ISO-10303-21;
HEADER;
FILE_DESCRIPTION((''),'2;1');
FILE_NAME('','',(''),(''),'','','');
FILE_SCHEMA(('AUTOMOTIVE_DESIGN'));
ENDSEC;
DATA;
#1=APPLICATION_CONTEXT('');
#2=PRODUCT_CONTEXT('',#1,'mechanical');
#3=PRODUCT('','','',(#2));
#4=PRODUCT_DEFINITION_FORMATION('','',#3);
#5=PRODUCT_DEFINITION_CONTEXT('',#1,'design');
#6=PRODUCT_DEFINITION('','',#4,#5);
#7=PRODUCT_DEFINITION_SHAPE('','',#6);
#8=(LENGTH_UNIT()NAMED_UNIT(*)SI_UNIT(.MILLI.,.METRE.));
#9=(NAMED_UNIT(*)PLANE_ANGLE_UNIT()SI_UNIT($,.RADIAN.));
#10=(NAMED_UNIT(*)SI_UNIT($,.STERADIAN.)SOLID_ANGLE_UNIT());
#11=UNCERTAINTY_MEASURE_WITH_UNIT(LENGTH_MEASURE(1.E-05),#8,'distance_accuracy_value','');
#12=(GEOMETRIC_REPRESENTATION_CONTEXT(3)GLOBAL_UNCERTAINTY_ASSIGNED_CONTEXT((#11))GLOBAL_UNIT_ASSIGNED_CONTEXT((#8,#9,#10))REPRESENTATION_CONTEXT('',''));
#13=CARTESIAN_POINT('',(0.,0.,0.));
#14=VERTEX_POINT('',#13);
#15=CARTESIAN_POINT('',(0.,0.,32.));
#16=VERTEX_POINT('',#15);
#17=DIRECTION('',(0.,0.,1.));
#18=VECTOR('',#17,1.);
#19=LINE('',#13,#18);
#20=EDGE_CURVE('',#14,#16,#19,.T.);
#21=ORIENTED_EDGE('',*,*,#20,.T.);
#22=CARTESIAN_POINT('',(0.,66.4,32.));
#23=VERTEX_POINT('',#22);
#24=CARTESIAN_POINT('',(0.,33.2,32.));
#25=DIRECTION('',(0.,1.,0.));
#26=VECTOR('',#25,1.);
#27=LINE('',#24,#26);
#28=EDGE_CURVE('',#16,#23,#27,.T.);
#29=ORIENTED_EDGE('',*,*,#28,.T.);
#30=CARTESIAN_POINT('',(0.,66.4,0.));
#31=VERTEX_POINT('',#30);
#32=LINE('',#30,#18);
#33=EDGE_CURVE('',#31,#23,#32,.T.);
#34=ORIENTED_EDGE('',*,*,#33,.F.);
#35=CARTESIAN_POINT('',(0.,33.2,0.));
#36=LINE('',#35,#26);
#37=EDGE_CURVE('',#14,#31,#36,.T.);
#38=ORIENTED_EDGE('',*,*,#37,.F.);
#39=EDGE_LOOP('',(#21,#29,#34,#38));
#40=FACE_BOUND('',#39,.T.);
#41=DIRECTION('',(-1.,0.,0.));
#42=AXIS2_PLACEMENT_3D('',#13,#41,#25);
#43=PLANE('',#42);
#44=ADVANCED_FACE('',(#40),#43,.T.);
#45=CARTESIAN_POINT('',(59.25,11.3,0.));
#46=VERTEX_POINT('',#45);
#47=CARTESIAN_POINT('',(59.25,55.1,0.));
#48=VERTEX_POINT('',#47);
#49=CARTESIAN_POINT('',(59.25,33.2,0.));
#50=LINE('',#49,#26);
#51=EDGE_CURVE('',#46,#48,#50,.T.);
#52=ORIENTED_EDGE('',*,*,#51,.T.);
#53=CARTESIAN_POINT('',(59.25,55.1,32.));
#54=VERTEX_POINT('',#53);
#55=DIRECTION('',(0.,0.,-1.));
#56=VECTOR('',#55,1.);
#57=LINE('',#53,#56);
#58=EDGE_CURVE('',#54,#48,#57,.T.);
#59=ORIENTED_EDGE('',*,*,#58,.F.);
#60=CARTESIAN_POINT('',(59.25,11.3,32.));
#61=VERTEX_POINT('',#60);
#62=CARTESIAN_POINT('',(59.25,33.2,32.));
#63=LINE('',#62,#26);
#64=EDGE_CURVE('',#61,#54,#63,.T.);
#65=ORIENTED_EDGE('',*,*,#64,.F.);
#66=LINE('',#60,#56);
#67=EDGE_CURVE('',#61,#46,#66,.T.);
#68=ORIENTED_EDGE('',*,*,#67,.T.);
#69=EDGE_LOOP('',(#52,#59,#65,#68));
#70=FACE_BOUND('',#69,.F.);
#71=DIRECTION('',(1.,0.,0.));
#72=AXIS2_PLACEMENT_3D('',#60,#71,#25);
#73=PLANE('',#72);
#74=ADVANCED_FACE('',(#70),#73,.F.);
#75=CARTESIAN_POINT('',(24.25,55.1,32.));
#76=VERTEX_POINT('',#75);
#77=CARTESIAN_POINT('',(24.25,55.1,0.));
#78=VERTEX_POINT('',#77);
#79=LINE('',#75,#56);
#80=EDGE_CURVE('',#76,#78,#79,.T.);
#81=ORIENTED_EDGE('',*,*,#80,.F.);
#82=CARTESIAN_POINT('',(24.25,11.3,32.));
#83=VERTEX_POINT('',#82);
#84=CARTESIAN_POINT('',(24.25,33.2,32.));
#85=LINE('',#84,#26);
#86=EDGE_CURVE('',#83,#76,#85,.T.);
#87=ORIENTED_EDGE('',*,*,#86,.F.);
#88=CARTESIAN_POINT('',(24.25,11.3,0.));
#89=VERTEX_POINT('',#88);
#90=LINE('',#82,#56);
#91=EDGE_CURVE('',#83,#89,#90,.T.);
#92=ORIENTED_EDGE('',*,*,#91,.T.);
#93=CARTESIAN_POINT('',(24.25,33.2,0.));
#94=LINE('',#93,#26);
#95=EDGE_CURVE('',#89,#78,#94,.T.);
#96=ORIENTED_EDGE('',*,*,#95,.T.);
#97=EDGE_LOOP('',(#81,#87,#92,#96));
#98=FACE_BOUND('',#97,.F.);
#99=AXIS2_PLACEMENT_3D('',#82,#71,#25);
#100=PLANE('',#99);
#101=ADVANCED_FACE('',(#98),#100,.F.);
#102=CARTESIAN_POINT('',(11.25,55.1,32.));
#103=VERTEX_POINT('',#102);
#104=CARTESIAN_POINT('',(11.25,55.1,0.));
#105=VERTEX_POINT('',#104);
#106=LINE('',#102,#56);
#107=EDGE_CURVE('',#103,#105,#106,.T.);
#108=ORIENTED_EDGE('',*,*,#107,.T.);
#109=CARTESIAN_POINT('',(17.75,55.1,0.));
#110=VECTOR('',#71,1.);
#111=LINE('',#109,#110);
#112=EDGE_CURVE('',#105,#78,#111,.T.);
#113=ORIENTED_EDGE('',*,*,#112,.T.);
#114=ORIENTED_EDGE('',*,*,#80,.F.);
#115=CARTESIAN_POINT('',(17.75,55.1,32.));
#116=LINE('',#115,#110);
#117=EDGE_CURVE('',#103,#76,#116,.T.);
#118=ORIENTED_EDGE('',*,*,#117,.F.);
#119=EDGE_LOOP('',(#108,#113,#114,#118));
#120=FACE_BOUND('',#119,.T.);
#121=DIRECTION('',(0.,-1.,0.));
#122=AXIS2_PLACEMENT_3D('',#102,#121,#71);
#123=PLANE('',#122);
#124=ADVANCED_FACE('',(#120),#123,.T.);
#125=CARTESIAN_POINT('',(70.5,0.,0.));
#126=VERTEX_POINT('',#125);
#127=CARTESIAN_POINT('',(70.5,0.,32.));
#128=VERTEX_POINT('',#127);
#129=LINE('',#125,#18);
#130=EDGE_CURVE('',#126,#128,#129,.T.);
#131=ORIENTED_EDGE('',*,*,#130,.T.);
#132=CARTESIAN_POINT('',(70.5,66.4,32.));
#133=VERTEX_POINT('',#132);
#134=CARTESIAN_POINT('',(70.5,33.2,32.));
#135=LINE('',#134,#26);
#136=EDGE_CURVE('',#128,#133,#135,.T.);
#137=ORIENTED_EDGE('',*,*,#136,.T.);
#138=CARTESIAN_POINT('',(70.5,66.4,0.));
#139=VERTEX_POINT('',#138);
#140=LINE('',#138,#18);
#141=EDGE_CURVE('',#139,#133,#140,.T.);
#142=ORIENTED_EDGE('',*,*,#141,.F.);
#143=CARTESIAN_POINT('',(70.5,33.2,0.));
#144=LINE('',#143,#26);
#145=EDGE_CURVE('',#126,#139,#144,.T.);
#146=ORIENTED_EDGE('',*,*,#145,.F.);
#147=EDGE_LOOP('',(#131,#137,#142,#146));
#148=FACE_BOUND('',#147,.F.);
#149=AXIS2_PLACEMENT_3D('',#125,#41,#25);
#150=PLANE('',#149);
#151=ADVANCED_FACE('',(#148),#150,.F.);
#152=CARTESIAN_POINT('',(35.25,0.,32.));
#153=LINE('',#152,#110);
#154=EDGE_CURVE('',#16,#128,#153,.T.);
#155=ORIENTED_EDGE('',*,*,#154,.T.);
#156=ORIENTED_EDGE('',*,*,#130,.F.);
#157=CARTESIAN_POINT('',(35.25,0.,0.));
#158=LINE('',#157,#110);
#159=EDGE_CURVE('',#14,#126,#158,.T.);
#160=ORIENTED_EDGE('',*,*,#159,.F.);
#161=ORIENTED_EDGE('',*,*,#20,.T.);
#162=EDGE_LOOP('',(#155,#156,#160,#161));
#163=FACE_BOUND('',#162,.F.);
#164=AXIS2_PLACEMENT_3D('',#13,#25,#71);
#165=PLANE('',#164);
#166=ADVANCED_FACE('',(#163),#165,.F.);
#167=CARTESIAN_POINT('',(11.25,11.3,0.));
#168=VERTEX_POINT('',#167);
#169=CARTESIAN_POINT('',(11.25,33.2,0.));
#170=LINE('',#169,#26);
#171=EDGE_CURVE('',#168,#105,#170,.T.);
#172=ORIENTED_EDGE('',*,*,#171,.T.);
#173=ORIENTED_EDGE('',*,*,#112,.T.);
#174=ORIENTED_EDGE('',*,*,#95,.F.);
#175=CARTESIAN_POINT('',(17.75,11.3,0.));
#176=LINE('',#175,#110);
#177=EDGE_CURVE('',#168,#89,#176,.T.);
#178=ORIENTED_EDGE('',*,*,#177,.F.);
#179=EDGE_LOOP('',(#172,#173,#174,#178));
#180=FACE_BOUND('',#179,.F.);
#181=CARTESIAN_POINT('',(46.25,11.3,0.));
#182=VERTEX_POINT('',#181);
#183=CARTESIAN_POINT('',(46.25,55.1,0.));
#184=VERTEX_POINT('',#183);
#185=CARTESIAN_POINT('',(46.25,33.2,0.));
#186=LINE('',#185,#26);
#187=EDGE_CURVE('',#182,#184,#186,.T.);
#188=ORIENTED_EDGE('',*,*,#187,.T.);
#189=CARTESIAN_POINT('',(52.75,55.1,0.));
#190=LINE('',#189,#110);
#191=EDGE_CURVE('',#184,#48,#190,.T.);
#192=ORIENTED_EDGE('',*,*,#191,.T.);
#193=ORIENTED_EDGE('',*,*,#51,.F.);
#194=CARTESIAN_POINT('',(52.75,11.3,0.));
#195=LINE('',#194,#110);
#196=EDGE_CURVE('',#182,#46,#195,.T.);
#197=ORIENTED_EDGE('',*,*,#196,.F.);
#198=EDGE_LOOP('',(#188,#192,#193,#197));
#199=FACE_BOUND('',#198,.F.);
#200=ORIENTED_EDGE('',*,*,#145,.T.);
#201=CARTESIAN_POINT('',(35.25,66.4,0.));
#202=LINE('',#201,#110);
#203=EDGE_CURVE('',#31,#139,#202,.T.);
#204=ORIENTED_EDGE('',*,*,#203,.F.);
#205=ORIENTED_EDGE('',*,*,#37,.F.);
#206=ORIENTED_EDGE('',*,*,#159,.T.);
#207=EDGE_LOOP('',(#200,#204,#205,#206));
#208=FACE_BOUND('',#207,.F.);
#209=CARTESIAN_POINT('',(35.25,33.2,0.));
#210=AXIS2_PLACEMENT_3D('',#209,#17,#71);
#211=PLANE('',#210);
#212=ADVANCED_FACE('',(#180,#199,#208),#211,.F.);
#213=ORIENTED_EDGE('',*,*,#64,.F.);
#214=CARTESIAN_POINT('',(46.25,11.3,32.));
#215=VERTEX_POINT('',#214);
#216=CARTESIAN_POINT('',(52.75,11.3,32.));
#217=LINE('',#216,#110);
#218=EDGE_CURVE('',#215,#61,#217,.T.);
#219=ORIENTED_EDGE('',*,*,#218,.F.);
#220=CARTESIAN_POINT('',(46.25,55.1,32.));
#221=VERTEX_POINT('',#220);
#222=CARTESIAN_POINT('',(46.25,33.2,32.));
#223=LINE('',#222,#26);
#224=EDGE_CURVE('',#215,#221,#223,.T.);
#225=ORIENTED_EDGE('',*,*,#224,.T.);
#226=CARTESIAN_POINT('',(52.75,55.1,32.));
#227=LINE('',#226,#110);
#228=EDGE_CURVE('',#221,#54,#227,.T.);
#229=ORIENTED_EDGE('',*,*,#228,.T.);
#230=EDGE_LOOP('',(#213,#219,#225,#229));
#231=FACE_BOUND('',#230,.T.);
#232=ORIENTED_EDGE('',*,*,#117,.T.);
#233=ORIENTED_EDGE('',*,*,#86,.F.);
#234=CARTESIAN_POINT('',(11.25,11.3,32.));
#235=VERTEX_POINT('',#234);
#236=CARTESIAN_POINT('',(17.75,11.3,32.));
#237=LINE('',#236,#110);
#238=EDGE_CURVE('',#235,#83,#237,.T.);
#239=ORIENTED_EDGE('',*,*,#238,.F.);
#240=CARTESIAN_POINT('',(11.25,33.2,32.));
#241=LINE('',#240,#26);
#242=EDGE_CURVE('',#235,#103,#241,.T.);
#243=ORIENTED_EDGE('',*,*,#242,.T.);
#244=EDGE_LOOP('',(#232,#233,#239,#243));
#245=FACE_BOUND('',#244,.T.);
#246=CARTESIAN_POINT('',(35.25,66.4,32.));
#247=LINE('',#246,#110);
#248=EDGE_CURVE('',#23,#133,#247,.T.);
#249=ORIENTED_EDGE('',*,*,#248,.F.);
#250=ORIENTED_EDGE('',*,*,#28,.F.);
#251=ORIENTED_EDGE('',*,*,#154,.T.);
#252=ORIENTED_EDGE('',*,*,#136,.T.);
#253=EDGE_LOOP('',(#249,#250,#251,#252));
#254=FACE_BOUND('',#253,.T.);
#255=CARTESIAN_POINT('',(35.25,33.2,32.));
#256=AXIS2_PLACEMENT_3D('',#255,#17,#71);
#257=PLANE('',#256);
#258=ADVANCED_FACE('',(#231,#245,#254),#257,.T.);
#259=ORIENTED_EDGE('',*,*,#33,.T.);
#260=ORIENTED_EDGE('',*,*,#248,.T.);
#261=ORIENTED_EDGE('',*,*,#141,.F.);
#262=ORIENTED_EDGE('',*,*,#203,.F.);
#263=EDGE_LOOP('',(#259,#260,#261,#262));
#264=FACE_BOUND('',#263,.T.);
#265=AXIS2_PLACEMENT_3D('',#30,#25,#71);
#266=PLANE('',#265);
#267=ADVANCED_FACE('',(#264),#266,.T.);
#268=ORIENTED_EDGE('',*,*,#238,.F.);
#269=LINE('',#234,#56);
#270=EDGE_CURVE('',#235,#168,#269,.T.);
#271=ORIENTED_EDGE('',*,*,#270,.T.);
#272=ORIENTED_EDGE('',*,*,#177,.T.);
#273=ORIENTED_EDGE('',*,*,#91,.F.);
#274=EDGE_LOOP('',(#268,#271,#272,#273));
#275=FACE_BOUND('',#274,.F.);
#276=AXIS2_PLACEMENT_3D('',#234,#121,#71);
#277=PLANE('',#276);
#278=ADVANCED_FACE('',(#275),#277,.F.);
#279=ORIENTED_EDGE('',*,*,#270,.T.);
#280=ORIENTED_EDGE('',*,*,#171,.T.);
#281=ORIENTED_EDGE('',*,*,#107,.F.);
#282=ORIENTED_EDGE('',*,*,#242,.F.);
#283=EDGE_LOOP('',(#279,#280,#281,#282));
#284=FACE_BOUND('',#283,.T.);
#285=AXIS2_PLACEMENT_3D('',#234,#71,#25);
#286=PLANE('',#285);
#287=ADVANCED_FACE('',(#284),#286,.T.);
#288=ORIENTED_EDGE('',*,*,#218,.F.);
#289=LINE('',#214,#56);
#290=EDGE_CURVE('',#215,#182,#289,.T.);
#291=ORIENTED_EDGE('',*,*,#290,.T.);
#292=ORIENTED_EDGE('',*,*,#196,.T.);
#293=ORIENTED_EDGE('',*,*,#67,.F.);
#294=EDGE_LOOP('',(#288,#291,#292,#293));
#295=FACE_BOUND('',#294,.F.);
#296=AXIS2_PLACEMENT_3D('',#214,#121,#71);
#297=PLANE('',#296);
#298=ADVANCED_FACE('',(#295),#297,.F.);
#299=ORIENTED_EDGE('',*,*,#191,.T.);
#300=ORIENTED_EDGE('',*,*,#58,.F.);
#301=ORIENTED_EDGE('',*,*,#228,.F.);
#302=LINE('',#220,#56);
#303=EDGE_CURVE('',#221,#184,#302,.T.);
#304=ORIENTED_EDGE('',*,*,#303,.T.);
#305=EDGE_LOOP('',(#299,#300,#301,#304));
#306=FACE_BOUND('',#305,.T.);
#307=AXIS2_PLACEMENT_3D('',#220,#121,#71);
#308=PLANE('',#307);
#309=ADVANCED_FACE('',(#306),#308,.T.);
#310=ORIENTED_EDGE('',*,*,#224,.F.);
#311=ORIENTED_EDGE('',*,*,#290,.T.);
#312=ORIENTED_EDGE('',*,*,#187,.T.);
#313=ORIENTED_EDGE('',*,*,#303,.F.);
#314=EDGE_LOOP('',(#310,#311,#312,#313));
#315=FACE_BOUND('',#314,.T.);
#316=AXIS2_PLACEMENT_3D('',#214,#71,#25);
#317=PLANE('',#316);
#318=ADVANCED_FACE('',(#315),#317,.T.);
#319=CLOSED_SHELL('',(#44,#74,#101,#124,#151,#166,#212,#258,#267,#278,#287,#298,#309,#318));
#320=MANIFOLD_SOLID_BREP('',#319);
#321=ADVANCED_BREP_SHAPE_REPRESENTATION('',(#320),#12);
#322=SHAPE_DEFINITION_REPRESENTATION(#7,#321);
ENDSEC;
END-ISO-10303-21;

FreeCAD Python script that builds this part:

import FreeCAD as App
import Part
import Sketcher
Q = App.Units.Quantity

doc = App.newDocument("Part")
body = doc.addObject("PartDesign::Body", "Body")

# Sketch on XY plane
sketch1 = body.newObject("Sketcher::SketchObject", "Sketch")
sketch1.AttachmentSupport = (doc.getObject("XY_Plane"), [""])
sketch1.MapMode = "FlatFace"
sketch1.addGeometry([
    Part.LineSegment(App.Vector(0, 66.4, 0), App.Vector(0, 0, 0)),
    Part.LineSegment(App.Vector(0, 0, 0), App.Vector(70.5, 0, 0)),
    Part.LineSegment(App.Vector(70.5, 0, 0), App.Vector(70.5, 66.4, 0)),
    Part.LineSegment(App.Vector(70.5, 66.4, 0), App.Vector(0, 66.4, 0)),
], False)
sketch1.addConstraint([
    Sketcher.Constraint("Coincident", 0, 2, 1, 1),
    Sketcher.Constraint("Coincident", 1, 2, 2, 1),
    Sketcher.Constraint("Coincident", 2, 2, 3, 1),
    Sketcher.Constraint("Coincident", 3, 2, 0, 1),
    Sketcher.Constraint("Vertical", 0),
    Sketcher.Constraint("Horizontal", 1),
    Sketcher.Constraint("Vertical", 2),
    Sketcher.Constraint("Horizontal", 3),
    Sketcher.Constraint("Coincident", 0, 2, -1, 1),
    Sketcher.Constraint("DistanceX", 1, 1, 1, 2, Q("70.5 mm")),
    Sketcher.Constraint("DistanceY", 0, 2, 0, 1, Q("66.4 mm")),
])
pad1 = body.newObject("PartDesign::Pad", "Pad")
pad1.Profile = sketch1
pad1.Length = 32

# Sketch on XY plane
sketch2 = body.newObject("Sketcher::SketchObject", "Sketch001")
sketch2.AttachmentSupport = (doc.getObject("XY_Plane"), [""])
sketch2.MapMode = "FlatFace"
sketch2.AttachmentOffset = App.Placement(App.Vector(0, 0, 32), App.Rotation())
sketch2.addGeometry([
    Part.LineSegment(App.Vector(11.25, 55.1, 0), App.Vector(11.25, 11.3, 0)),  # 0
    Part.LineSegment(App.Vector(11.25, 11.3, 0), App.Vector(24.25, 11.3, 0)),  # 1
    Part.LineSegment(App.Vector(24.25, 11.3, 0), App.Vector(24.25, 55.1, 0)),  # 2
    Part.LineSegment(App.Vector(24.25, 55.1, 0), App.Vector(11.25, 55.1, 0)),  # 3
    Part.LineSegment(App.Vector(46.25, 55.1, 0), App.Vector(46.25, 11.3, 0)),  # 4
    Part.LineSegment(App.Vector(46.25, 11.3, 0), App.Vector(59.25, 11.3, 0)),  # 5
    Part.LineSegment(App.Vector(59.25, 11.3, 0), App.Vector(59.25, 55.1, 0)),  # 6
    Part.LineSegment(App.Vector(59.25, 55.1, 0), App.Vector(46.25, 55.1, 0)),  # 7
], False)
sketch2.addConstraint([
    Sketcher.Constraint("Coincident", 0, 2, 1, 1),
    Sketcher.Constraint("Coincident", 1, 2, 2, 1),
    Sketcher.Constraint("Coincident", 2, 2, 3, 1),
    Sketcher.Constraint("Coincident", 3, 2, 0, 1),
    Sketcher.Constraint("Coincident", 4, 2, 5, 1),
    Sketcher.Constraint("Coincident", 5, 2, 6, 1),
    Sketcher.Constraint("Coincident", 6, 2, 7, 1),
    Sketcher.Constraint("Coincident", 7, 2, 4, 1),
    Sketcher.Constraint("Vertical", 0),
    Sketcher.Constraint("Horizontal", 1),
    Sketcher.Constraint("Vertical", 2),
    Sketcher.Constraint("Horizontal", 3),
    Sketcher.Constraint("Vertical", 4),
    Sketcher.Constraint("Horizontal", 5),
    Sketcher.Constraint("Vertical", 6),
    Sketcher.Constraint("Horizontal", 7),
    Sketcher.Constraint("Horizontal", 1, 2, 4, 2),
    Sketcher.Constraint("Horizontal", 3, 2, 6, 2),
    Sketcher.Constraint("Equal", 3, 5),
    Sketcher.Constraint("DistanceX", 1, 1, 1, 2, Q("13 mm")),
    Sketcher.Constraint("DistanceY", 0, 2, 0, 1, Q("43.8 mm")),
    Sketcher.Constraint("DistanceX", 1, 2, 4, 2, Q("22 mm")),
    Sketcher.Constraint("DistanceY", -1, 1, 0, 2, Q("11.3 mm")),
    Sketcher.Constraint("DistanceX", -1, 1, 0, 2, Q("11.25 mm")),
])
pocket1 = body.newObject("PartDesign::Pocket", "Pocket")
pocket1.Profile = sketch2
pocket1.Length = 32

doc.recompute()
